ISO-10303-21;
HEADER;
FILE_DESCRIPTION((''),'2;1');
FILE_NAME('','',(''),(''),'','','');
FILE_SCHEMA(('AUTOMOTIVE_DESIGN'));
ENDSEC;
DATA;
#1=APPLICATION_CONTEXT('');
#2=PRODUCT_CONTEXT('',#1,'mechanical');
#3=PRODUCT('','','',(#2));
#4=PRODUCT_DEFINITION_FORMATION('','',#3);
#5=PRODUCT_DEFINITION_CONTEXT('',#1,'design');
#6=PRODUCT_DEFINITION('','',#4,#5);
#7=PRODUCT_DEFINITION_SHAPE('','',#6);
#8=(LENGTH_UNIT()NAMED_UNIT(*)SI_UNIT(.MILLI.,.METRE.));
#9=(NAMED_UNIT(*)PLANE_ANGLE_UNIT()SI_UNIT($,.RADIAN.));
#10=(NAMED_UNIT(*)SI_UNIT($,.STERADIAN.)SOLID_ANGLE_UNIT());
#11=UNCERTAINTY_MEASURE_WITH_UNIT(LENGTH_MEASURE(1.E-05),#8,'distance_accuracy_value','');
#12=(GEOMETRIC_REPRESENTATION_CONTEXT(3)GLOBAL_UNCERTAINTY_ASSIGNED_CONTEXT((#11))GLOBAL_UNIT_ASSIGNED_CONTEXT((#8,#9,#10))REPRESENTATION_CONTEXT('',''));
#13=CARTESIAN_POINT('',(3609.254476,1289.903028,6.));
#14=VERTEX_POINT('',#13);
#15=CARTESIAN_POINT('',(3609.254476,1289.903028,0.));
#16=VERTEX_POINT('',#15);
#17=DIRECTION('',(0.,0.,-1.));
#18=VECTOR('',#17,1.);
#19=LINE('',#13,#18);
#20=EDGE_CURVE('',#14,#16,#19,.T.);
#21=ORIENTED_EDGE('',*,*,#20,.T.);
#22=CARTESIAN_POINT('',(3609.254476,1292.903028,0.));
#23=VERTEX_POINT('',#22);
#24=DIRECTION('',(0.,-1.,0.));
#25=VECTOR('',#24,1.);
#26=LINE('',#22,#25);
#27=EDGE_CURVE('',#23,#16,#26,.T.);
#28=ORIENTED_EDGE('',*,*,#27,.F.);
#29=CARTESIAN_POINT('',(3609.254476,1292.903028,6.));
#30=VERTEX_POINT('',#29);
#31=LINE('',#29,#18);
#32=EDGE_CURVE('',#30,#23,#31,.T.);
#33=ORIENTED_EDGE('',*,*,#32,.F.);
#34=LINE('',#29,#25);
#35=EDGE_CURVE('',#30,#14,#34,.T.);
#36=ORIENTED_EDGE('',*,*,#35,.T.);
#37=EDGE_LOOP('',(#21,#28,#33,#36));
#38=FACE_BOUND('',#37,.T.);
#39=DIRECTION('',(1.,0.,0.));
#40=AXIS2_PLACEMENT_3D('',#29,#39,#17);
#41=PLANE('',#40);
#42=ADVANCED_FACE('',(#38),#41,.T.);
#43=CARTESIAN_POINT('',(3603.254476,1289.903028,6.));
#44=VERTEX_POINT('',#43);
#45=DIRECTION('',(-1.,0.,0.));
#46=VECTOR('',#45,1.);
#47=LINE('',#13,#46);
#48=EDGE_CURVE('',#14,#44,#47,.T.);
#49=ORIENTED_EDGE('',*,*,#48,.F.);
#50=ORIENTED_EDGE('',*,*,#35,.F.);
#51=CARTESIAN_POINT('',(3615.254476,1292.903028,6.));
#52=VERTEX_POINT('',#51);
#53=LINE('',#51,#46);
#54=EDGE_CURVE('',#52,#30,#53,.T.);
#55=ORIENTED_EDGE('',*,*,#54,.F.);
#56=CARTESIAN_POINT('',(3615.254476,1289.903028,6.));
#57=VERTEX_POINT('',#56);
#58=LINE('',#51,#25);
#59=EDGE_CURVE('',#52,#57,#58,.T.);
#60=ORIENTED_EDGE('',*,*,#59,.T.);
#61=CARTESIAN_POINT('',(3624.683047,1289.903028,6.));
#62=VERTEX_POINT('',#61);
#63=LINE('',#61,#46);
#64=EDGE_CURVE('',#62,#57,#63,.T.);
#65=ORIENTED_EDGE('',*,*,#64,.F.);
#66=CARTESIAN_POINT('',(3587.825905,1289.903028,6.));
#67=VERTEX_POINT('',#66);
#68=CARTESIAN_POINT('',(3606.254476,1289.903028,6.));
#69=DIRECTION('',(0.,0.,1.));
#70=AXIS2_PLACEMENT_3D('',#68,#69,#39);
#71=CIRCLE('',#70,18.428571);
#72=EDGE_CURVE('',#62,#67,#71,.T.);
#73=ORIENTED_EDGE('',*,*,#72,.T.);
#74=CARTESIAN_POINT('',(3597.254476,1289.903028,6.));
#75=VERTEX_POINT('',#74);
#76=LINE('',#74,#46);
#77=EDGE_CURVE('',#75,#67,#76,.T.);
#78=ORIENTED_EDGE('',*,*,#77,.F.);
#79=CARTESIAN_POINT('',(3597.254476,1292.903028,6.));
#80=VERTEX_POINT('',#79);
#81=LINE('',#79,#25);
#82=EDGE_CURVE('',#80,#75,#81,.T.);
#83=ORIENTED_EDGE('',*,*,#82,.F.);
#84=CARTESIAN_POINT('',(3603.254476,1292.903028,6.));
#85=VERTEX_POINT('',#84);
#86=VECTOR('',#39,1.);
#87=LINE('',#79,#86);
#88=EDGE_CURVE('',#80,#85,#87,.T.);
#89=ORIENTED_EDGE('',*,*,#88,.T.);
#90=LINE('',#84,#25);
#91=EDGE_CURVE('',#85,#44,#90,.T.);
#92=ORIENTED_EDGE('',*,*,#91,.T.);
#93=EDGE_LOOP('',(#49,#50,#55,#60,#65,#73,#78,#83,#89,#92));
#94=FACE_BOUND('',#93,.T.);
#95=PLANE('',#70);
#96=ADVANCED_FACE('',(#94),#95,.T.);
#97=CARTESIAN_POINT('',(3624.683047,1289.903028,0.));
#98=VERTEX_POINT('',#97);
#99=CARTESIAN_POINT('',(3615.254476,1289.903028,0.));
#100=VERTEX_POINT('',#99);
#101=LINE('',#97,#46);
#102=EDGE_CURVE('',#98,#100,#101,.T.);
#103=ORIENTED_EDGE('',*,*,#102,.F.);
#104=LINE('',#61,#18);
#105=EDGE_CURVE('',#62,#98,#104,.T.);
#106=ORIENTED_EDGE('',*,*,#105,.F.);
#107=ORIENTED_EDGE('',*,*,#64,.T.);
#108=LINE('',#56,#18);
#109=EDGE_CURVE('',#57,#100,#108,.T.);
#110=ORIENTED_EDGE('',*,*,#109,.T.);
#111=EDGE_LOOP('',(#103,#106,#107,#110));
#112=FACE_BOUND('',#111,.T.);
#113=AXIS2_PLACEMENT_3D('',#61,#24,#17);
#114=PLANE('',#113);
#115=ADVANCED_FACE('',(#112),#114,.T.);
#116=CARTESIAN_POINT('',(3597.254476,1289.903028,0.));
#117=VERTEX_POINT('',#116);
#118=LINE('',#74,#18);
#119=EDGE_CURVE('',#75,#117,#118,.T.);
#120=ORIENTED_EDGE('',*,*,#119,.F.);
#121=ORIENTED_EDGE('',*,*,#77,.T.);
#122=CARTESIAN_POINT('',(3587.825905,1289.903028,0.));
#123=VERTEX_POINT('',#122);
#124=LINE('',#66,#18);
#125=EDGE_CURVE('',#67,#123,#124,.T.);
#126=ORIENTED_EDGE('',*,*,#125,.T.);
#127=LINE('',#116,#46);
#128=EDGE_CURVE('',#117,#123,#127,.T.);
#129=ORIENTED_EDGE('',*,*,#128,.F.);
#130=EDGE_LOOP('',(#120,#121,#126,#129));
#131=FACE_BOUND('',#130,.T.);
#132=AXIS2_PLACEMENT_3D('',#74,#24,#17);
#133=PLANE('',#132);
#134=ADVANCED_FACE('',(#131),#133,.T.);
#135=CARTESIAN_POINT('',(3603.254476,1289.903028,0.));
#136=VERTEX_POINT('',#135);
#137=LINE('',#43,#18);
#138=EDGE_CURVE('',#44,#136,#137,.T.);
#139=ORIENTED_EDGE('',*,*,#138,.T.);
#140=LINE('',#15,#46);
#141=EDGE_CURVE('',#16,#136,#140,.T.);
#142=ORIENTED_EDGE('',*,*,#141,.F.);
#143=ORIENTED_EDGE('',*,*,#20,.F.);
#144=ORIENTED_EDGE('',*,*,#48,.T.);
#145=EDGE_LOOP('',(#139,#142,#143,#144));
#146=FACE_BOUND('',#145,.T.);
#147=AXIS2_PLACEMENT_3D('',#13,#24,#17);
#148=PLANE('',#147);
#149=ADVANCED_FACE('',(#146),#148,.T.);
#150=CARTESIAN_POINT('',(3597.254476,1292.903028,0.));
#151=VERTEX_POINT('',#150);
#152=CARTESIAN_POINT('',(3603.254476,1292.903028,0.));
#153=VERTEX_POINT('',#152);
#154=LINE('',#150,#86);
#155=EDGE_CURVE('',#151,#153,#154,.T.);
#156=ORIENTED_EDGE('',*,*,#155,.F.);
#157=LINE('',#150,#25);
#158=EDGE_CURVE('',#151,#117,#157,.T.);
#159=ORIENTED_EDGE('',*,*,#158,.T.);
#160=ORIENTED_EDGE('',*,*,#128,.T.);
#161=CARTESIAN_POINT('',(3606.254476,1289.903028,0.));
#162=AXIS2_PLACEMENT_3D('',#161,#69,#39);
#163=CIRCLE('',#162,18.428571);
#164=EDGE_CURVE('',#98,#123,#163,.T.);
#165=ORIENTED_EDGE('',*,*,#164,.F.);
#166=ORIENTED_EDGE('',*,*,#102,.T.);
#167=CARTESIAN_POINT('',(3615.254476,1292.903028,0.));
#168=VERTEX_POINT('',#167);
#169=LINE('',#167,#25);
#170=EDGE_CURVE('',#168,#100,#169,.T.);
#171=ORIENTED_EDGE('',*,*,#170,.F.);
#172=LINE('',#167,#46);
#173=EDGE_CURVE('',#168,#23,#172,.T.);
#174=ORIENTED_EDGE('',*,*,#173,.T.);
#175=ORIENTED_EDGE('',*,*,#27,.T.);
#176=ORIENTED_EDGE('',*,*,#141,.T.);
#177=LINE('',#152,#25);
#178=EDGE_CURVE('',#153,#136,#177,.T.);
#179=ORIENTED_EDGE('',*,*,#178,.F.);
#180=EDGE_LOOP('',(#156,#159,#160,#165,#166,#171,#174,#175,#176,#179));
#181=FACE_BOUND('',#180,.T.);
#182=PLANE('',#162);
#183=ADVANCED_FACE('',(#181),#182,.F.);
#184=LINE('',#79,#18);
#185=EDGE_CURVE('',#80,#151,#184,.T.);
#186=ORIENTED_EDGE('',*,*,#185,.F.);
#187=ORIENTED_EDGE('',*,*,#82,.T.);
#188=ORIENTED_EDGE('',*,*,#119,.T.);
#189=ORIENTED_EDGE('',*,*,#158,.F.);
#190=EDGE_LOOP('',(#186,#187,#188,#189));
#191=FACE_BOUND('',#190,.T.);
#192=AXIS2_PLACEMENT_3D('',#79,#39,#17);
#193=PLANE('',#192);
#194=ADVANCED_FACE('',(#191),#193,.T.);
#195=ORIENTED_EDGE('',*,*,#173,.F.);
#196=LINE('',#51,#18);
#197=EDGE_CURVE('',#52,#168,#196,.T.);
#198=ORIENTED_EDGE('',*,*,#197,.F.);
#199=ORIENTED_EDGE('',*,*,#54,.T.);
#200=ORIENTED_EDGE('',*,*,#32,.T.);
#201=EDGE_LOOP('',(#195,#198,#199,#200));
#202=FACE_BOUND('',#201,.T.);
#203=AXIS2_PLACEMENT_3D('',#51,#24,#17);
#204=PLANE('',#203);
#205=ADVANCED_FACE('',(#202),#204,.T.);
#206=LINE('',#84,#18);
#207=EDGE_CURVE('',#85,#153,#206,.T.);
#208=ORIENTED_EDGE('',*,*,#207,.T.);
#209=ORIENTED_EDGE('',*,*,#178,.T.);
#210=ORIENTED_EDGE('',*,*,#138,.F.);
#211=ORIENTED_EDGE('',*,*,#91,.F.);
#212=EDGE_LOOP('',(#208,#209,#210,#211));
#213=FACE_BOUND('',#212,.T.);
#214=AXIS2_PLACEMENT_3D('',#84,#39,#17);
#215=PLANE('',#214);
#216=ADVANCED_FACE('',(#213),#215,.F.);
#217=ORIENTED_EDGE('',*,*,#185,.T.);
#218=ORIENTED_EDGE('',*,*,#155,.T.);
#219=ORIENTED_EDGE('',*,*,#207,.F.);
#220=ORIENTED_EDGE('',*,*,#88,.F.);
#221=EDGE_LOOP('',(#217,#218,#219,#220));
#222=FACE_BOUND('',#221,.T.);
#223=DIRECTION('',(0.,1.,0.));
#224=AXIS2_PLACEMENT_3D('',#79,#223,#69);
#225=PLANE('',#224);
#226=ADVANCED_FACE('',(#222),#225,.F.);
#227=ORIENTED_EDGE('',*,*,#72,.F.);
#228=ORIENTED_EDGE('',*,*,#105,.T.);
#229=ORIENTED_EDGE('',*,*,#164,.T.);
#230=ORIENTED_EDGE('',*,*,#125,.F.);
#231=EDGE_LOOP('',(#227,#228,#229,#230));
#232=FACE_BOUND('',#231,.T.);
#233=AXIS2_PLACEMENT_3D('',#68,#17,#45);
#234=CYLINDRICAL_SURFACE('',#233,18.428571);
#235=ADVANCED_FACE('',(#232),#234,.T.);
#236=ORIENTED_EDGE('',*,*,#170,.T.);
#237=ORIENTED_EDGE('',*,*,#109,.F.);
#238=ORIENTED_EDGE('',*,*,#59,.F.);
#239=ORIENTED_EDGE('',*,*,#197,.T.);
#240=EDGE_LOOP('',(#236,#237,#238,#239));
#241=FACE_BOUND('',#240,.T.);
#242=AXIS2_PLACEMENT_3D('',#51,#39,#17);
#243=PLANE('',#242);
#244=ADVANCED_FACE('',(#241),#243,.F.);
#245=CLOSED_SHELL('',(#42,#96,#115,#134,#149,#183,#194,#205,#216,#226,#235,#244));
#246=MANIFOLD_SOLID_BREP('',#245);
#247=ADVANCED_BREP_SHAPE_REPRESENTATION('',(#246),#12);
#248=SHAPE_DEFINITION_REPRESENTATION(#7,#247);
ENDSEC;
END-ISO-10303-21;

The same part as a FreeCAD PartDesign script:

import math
import FreeCAD as App
import Part
import Sketcher

V = App.Vector

doc = App.newDocument("Part")
params = doc.addObject("Spreadsheet::Sheet", "Params")
for row, (alias, value) in enumerate([
    ("sketch1_width", "6 mm"),
    ("sketch1_height", "3 mm"),
    ("pad1_length", "6 mm"),
], start=1):
    params.set(f"A{row}", alias)
    params.set(f"B{row}", "=" + value)
    params.setAlias(f"B{row}", alias)

body = doc.addObject("PartDesign::Body", "Body")

# Sketch on XY plane
sketch1 = body.newObject("Sketcher::SketchObject", "Sketch")
sketch1.AttachmentSupport = (doc.getObject("XY_Plane"), [""])
sketch1.MapMode = "FlatFace"
sketch1.addGeometry(Part.LineSegment(V(3615.254476, 1289.903028, 0), V(3624.683047, 1289.903028, 0)), False)
sketch1.addGeometry(Part.ArcOfCircle(Part.Circle(V(3606.254476, 1289.903028, 0), V(0, 0, 1), 18.428571), math.radians(0), math.radians(180)), False)
sketch1.addGeometry(Part.LineSegment(V(3587.825905, 1289.903028, 0), V(3597.254476, 1289.903028, 0)), False)
sketch1.addGeometry(Part.LineSegment(V(3597.254476, 1289.903028, 0), V(3597.254476, 1292.903028, 0)), False)
sketch1.addGeometry(Part.LineSegment(V(3597.254476, 1292.903028, 0), V(3603.254476, 1292.903028, 0)), False)
sketch1.addGeometry(Part.LineSegment(V(3603.254476, 1292.903028, 0), V(3603.254476, 1289.903028, 0)), False)
sketch1.addGeometry(Part.LineSegment(V(3603.254476, 1289.903028, 0), V(3609.254476, 1289.903028, 0)), False)
sketch1.addGeometry(Part.LineSegment(V(3609.254476, 1289.903028, 0), V(3609.254476, 1292.903028, 0)), False)
sketch1.addGeometry(Part.LineSegment(V(3609.254476, 1292.903028, 0), V(3615.254476, 1292.903028, 0)), False)
sketch1.addGeometry(Part.LineSegment(V(3615.254476, 1292.903028, 0), V(3615.254476, 1289.903028, 0)), False)
sketch1.addConstraint(Sketcher.Constraint("Coincident", 0, 2, 1, 1))
sketch1.addConstraint(Sketcher.Constraint("Coincident", 1, 2, 2, 1))
sketch1.addConstraint(Sketcher.Constraint("Coincident", 2, 2, 3, 1))
sketch1.addConstraint(Sketcher.Constraint("Coincident", 3, 2, 4, 1))
sketch1.addConstraint(Sketcher.Constraint("Coincident", 4, 2, 5, 1))
sketch1.addConstraint(Sketcher.Constraint("Coincident", 5, 2, 6, 1))
sketch1.addConstraint(Sketcher.Constraint("Coincident", 6, 2, 7, 1))
sketch1.addConstraint(Sketcher.Constraint("Coincident", 7, 2, 8, 1))
sketch1.addConstraint(Sketcher.Constraint("Coincident", 8, 2, 9, 1))
sketch1.addConstraint(Sketcher.Constraint("Coincident", 9, 2, 0, 1))
sketch1.addConstraint(Sketcher.Constraint("Horizontal", 0))
sketch1.addConstraint(Sketcher.Constraint("Horizontal", 2))
sketch1.addConstraint(Sketcher.Constraint("Vertical", 3))
sketch1.addConstraint(Sketcher.Constraint("Horizontal", 4))
sketch1.addConstraint(Sketcher.Constraint("Vertical", 5))
sketch1.addConstraint(Sketcher.Constraint("Horizontal", 6))
sketch1.addConstraint(Sketcher.Constraint("Vertical", 7))
sketch1.addConstraint(Sketcher.Constraint("Horizontal", 8))
sketch1.addConstraint(Sketcher.Constraint("Vertical", 9))
sketch1.addConstraint(Sketcher.Constraint("Horizontal", 1, 3, 0, 2))
sketch1.addConstraint(Sketcher.Constraint("Horizontal", 0, 2, 1, 2))
sketch1.addConstraint(Sketcher.Constraint("Horizontal", 2, 2, 5, 2))
sketch1.addConstraint(Sketcher.Constraint("Horizontal", 4, 2, 7, 2))
sketch1.addConstraint(Sketcher.Constraint("Equal", 0, 2))
sketch1.addConstraint(Sketcher.Constraint("Equal", 4, 6))
sketch1.addConstraint(Sketcher.Constraint("Equal", 6, 8))
sketch1.addConstraint(Sketcher.Constraint("DistanceX", 4, 1, 4, 2, 6.0))
sketch1.addConstraint(Sketcher.Constraint("DistanceY", 3, 1, 3, 2, 3.0))
sketch1.addConstraint(Sketcher.Constraint("Radius", 1, 18.428571))
sketch1.addConstraint(Sketcher.Constraint("DistanceX", -1, 1, 1, 3, 3606.254476))
sketch1.addConstraint(Sketcher.Constraint("DistanceY", -1, 1, 1, 3, 1289.903028))
sketch1.setExpression("Constraints[26]", "Params.sketch1_width")
sketch1.setExpression("Constraints[27]", "Params.sketch1_height")
pad1 = body.newObject("PartDesign::Pad", "Pad")
pad1.Profile = sketch1
pad1.setExpression("Length", "Params.pad1_length")

doc.recompute()
